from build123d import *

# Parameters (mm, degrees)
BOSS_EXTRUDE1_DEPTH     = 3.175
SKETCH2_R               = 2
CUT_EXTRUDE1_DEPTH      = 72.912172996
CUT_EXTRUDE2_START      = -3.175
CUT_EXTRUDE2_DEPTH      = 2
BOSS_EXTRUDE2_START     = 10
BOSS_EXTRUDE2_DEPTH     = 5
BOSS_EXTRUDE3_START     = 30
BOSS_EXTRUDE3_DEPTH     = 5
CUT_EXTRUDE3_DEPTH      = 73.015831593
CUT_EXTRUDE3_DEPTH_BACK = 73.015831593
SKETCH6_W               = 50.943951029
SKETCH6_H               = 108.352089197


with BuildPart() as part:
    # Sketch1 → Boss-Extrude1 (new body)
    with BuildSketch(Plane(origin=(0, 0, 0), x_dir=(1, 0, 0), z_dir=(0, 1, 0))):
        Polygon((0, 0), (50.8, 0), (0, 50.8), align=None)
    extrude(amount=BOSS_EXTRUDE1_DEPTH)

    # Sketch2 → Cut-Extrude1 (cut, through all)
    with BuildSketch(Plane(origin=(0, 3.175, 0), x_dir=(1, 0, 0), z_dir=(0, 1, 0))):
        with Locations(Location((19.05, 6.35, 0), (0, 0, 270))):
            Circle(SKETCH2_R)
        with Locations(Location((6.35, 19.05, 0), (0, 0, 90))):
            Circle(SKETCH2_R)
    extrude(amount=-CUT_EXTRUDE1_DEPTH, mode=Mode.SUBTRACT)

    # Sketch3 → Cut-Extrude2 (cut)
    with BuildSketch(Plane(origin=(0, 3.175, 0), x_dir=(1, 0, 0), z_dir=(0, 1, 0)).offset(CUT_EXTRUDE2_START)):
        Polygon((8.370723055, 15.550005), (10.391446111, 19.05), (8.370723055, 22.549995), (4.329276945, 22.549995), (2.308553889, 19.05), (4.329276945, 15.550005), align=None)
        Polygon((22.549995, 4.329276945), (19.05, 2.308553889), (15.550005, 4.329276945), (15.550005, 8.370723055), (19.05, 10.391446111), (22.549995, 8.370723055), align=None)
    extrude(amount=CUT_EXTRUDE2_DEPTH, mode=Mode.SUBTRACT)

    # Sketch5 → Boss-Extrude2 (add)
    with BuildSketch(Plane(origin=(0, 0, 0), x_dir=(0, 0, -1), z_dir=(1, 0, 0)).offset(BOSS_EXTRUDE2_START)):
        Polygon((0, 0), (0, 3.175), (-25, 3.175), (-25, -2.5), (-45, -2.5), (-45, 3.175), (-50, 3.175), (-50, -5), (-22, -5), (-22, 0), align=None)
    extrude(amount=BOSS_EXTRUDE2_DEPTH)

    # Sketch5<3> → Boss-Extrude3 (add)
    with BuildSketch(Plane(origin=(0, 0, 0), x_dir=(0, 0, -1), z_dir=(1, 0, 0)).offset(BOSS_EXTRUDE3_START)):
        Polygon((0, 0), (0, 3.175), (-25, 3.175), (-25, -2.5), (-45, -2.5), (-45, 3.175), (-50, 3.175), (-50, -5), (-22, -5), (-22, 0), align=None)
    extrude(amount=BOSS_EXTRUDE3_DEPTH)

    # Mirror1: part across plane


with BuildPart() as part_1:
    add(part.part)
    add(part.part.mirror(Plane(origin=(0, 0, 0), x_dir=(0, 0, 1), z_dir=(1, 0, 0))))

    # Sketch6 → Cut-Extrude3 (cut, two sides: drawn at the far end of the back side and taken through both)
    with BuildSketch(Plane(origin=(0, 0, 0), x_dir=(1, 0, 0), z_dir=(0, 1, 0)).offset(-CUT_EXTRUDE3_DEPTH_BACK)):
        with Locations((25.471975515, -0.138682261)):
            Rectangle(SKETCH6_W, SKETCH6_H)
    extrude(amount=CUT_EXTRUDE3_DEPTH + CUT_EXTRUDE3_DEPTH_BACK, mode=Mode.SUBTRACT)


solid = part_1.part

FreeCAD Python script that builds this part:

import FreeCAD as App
import Part
import Sketcher
Q = App.Units.Quantity

doc = App.newDocument("Part")
body = doc.addObject("PartDesign::Body", "Body")

sketch1 = body.newObject("Sketcher::SketchObject", "Sketch")
sketch1.AttachmentSupport = (doc.getObject("XZ_Plane"), [""])
sketch1.MapMode = "FlatFace"
sketch1.addGeometry([
    Part.LineSegment(App.Vector(0, 0, 0), App.Vector(51, 0, 0)),
    Part.LineSegment(App.Vector(51, 0, 0), App.Vector(0, -51, 0)),
    Part.LineSegment(App.Vector(0, -51, 0), App.Vector(0, 0, 0)),
], False)
sketch1.addConstraint([
    Sketcher.Constraint("Coincident", 0, 2, 1, 1),
    Sketcher.Constraint("Coincident", 1, 2, 2, 1),
    Sketcher.Constraint("Coincident", 2, 2, 0, 1),
    Sketcher.Constraint("Horizontal", 0),
    Sketcher.Constraint("Vertical", 2),
    Sketcher.Constraint("Coincident", 2, 2, -1, 1),
    Sketcher.Constraint("Equal", 0, 2),
    Sketcher.Constraint("DistanceX", 0, 1, 0, 2, 50.8),
])
pad1 = body.newObject("PartDesign::Pad", "Pad")
pad1.Profile = sketch1
pad1.Length = 3.175
pad1.Reversed = True

sketch2 = body.newObject("Sketcher::SketchObject", "Sketch001")
sketch2.AttachmentSupport = (doc.getObject("XZ_Plane"), [""])
sketch2.MapMode = "FlatFace"
sketch2.AttachmentOffset = App.Placement(App.Vector(0, 0, -3.175), App.Rotation())
sketch2.addGeometry([
    Part.Circle(App.Vector(19.1, -6.3, 0), App.Vector(0, 0, 1), 2),
    Part.Circle(App.Vector(6.3, -19.1, 0), App.Vector(0, 0, 1), 2),
], False)
sketch2.addConstraint([
    Sketcher.Constraint("Equal", 0, 1),
    Sketcher.Constraint("Diameter", 0, 4.0),
    Sketcher.Constraint("DistanceX", 1, 3, 0, 3, 12.7),
    Sketcher.Constraint("DistanceY", 1, 3, 0, 3, 12.7),
    Sketcher.Constraint("DistanceX", -1, 1, 0, 3, 19.05),
    Sketcher.Constraint("DistanceY", 0, 3, -1, 1, 6.35),
])
pocket1 = body.newObject("PartDesign::Pocket", "Pocket")
pocket1.Profile = sketch2
pocket1.Type = "ThroughAll"
pocket1.Reversed = True

sketch3 = body.newObject("Sketcher::SketchObject", "Sketch002")
sketch3.AttachmentSupport = (doc.getObject("XZ_Plane"), [""])
sketch3.MapMode = "FlatFace"
sketch3.addGeometry([
    Part.LineSegment(App.Vector(8.4, -15.6, 0), App.Vector(10.4, -19.1, 0)),
    Part.LineSegment(App.Vector(10.4, -19.1, 0), App.Vector(8.4, -22.5, 0)),
    Part.LineSegment(App.Vector(8.4, -22.5, 0), App.Vector(4.3, -22.5, 0)),
    Part.LineSegment(App.Vector(4.3, -22.5, 0), App.Vector(2.3, -19.1, 0)),
    Part.LineSegment(App.Vector(2.3, -19.1, 0), App.Vector(4.3, -15.6, 0)),
    Part.LineSegment(App.Vector(4.3, -15.6, 0), App.Vector(8.4, -15.6, 0)),
    Part.LineSegment(App.Vector(19.1, -2.3, 0), App.Vector(22.5, -4.3, 0)),
    Part.LineSegment(App.Vector(22.5, -4.3, 0), App.Vector(22.5, -8.4, 0)),
    Part.LineSegment(App.Vector(22.5, -8.4, 0), App.Vector(19.1, -10.4, 0)),
    Part.LineSegment(App.Vector(19.1, -10.4, 0), App.Vector(15.6, -8.4, 0)),
    Part.LineSegment(App.Vector(15.6, -8.4, 0), App.Vector(15.6, -4.3, 0)),
    Part.LineSegment(App.Vector(15.6, -4.3, 0), App.Vector(19.1, -2.3, 0)),
], False)
sketch3.addConstraint([
    Sketcher.Constraint("Coincident", 0, 2, 1, 1),
    Sketcher.Constraint("Coincident", 1, 2, 2, 1),
    Sketcher.Constraint("Coincident", 2, 2, 3, 1),
    Sketcher.Constraint("Coincident", 3, 2, 4, 1),
    Sketcher.Constraint("Coincident", 4, 2, 5, 1),
    Sketcher.Constraint("Coincident", 5, 2, 0, 1),
    Sketcher.Constraint("Coincident", 6, 2, 7, 1),
    Sketcher.Constraint("Coincident", 7, 2, 8, 1),
    Sketcher.Constraint("Coincident", 8, 2, 9, 1),
    Sketcher.Constraint("Coincident", 9, 2, 10, 1),
    Sketcher.Constraint("Coincident", 10, 2, 11, 1),
    Sketcher.Constraint("Coincident", 11, 2, 6, 1),
    Sketcher.Constraint("Horizontal", 2),
    Sketcher.Constraint("Horizontal", 5),
    Sketcher.Constraint("Vertical", 7),
    Sketcher.Constraint("Vertical", 10),
    Sketcher.Constraint("Parallel", 0, 3),
    Sketcher.Constraint("Parallel", 1, 4),
    Sketcher.Constraint("Perpendicular", 4, 6),
    Sketcher.Constraint("Perpendicular", 3, 8),
    Sketcher.Constraint("Parallel", 6, 9),
    Sketcher.Constraint("Parallel", 8, 11),
    Sketcher.Constraint("Horizontal", 0, 2, 3, 2),
    Sketcher.Constraint("Horizontal", 7, 2, 9, 2),
    Sketcher.Constraint("Horizontal", 6, 2, 10, 2),
    Sketcher.Constraint("Vertical", 2, 2, 4, 2),
    Sketcher.Constraint("Vertical", 1, 2, 5, 2),
    Sketcher.Constraint("Equal", 5, 7),
    Sketcher.Constraint("Equal", 4, 6),
    Sketcher.Constraint("Angle", 0, Q("-60 deg")),
    Sketcher.Constraint("DistanceY", 0, 2, -1, 1, 19.05),
    Sketcher.Constraint("DistanceX", -1, 1, 8, 2, 19.05),
    Sketcher.Constraint("DistanceX", 2, 2, 2, 1, 4.041446),
    Sketcher.Constraint("DistanceX", 2, 2, 0, 2, 6.062169),
    Sketcher.Constraint("DistanceX", 5, 2, 6, 2, 14.179272),
    Sketcher.Constraint("DistanceY", 5, 2, 6, 2, 11.220728),
])
pocket2 = body.newObject("PartDesign::Pocket", "Pocket001")
pocket2.Profile = sketch3
pocket2.Length = 2

sketch4 = body.newObject("Sketcher::SketchObject", "Sketch003")
sketch4.AttachmentSupport = (doc.getObject("YZ_Plane"), [""])
sketch4.MapMode = "FlatFace"
sketch4.AttachmentOffset = App.Placement(App.Vector(0, 0, 10), App.Rotation())
sketch4.addGeometry([
    Part.LineSegment(App.Vector(0, 0, 0), App.Vector(3.2, 0, 0)),
    Part.LineSegment(App.Vector(3.2, 0, 0), App.Vector(3.2, 25, 0)),
    Part.LineSegment(App.Vector(3.2, 25, 0), App.Vector(-2.5, 25, 0)),
    Part.LineSegment(App.Vector(-2.5, 25, 0), App.Vector(-2.5, 45, 0)),
    Part.LineSegment(App.Vector(-2.5, 45, 0), App.Vector(3.2, 45, 0)),
    Part.LineSegment(App.Vector(3.2, 45, 0), App.Vector(3.2, 50, 0)),
    Part.LineSegment(App.Vector(3.2, 50, 0), App.Vector(-5, 50, 0)),
    Part.LineSegment(App.Vector(-5, 50, 0), App.Vector(-5, 22, 0)),
    Part.LineSegment(App.Vector(-5, 22, 0), App.Vector(0, 22, 0)),
    Part.LineSegment(App.Vector(0, 22, 0), App.Vector(0, 0, 0)),
], False)
sketch4.addConstraint([
    Sketcher.Constraint("Coincident", 0, 2, 1, 1),
    Sketcher.Constraint("Coincident", 1, 2, 2, 1),
    Sketcher.Constraint("Coincident", 2, 2, 3, 1),
    Sketcher.Constraint("Coincident", 3, 2, 4, 1),
    Sketcher.Constraint("Coincident", 4, 2, 5, 1),
    Sketcher.Constraint("Coincident", 5, 2, 6, 1),
    Sketcher.Constraint("Coincident", 6, 2, 7, 1),
    Sketcher.Constraint("Coincident", 7, 2, 8, 1),
    Sketcher.Constraint("Coincident", 8, 2, 9, 1),
    Sketcher.Constraint("Coincident", 9, 2, 0, 1),
    Sketcher.Constraint("Horizontal", 0),
    Sketcher.Constraint("Vertical", 1),
    Sketcher.Constraint("Horizontal", 2),
    Sketcher.Constraint("Vertical", 3),
    Sketcher.Constraint("Horizontal", 4),
    Sketcher.Constraint("Vertical", 5),
    Sketcher.Constraint("Horizontal", 6),
    Sketcher.Constraint("Vertical", 7),
    Sketcher.Constraint("Horizontal", 8),
    Sketcher.Constraint("Vertical", 9),
    Sketcher.Constraint("Coincident", 9, 2, -1, 1),
    Sketcher.Constraint("Vertical", 1, 2, 4, 2),
    Sketcher.Constraint("Equal", 8, 5),
    Sketcher.Constraint("DistanceX", 8, 1, 8, 2, 5.0),
    Sketcher.Constraint("DistanceY", 1, 1, 1, 2, 25.0),
    Sketcher.Constraint("DistanceY", 3, 1, 3, 2, 20.0),
    Sketcher.Constraint("DistanceY", 7, 2, 7, 1, 28.0),
    Sketcher.Constraint("DistanceX", 2, 2, -1, 1, 2.5),
    Sketcher.Constraint("DistanceX", 0, 1, 0, 2, 3.175),
])
pad2 = body.newObject("PartDesign::Pad", "Pad001")
pad2.Profile = sketch4
pad2.Length = 5

sketch5 = body.newObject("Sketcher::SketchObject", "Sketch004")
sketch5.AttachmentSupport = (doc.getObject("YZ_Plane"), [""])
sketch5.MapMode = "FlatFace"
sketch5.AttachmentOffset = App.Placement(App.Vector(0, 0, 30), App.Rotation())
sketch5.addGeometry([
    Part.LineSegment(App.Vector(0, 0, 0), App.Vector(3.2, 0, 0)),
    Part.LineSegment(App.Vector(3.2, 0, 0), App.Vector(3.2, 25, 0)),
    Part.LineSegment(App.Vector(3.2, 25, 0), App.Vector(-2.5, 25, 0)),
    Part.LineSegment(App.Vector(-2.5, 25, 0), App.Vector(-2.5, 45, 0)),
    Part.LineSegment(App.Vector(-2.5, 45, 0), App.Vector(3.2, 45, 0)),
    Part.LineSegment(App.Vector(3.2, 45, 0), App.Vector(3.2, 50, 0)),
    Part.LineSegment(App.Vector(3.2, 50, 0), App.Vector(-5, 50, 0)),
    Part.LineSegment(App.Vector(-5, 50, 0), App.Vector(-5, 22, 0)),
    Part.LineSegment(App.Vector(-5, 22, 0), App.Vector(0, 22, 0)),
    Part.LineSegment(App.Vector(0, 22, 0), App.Vector(0, 0, 0)),
], False)
sketch5.addConstraint([
    Sketcher.Constraint("Coincident", 0, 2, 1, 1),
    Sketcher.Constraint("Coincident", 1, 2, 2, 1),
    Sketcher.Constraint("Coincident", 2, 2, 3, 1),
    Sketcher.Constraint("Coincident", 3, 2, 4, 1),
    Sketcher.Constraint("Coincident", 4, 2, 5, 1),
    Sketcher.Constraint("Coincident", 5, 2, 6, 1),
    Sketcher.Constraint("Coincident", 6, 2, 7, 1),
    Sketcher.Constraint("Coincident", 7, 2, 8, 1),
    Sketcher.Constraint("Coincident", 8, 2, 9, 1),
    Sketcher.Constraint("Coincident", 9, 2, 0, 1),
    Sketcher.Constraint("Horizontal", 0),
    Sketcher.Constraint("Vertical", 1),
    Sketcher.Constraint("Horizontal", 2),
    Sketcher.Constraint("Vertical", 3),
    Sketcher.Constraint("Horizontal", 4),
    Sketcher.Constraint("Vertical", 5),
    Sketcher.Constraint("Horizontal", 6),
    Sketcher.Constraint("Vertical", 7),
    Sketcher.Constraint("Horizontal", 8),
    Sketcher.Constraint("Vertical", 9),
    Sketcher.Constraint("Coincident", 9, 2, -1, 1),
    Sketcher.Constraint("Vertical", 1, 2, 4, 2),
    Sketcher.Constraint("Equal", 8, 5),
    Sketcher.Constraint("DistanceX", 8, 1, 8, 2, 5.0),
    Sketcher.Constraint("DistanceY", 1, 1, 1, 2, 25.0),
    Sketcher.Constraint("DistanceY", 3, 1, 3, 2, 20.0),
    Sketcher.Constraint("DistanceY", 7, 2, 7, 1, 28.0),
    Sketcher.Constraint("DistanceX", 2, 2, -1, 1, 2.5),
    Sketcher.Constraint("DistanceX", 0, 1, 0, 2, 3.175),
])
pad3 = body.newObject("PartDesign::Pad", "Pad002")
pad3.Profile = sketch5
pad3.Length = 5
body2 = doc.addObject("PartDesign::Body", "Body001")
doc.recompute()

body2.BaseFeature = body
doc.recompute()

mirroring = doc.addObject("Part::Mirroring", "Mirroring")
mirroring.Source = body
mirroring.Base = App.Vector(0, 0, 0)
mirroring.Normal = App.Vector(1, 0, 0)
body3 = doc.addObject("PartDesign::Body", "Body002")
body3.BaseFeature = mirroring
boolean = body2.newObject("PartDesign::Boolean", "Boolean")
boolean.Type = "Fuse"
boolean.addObjects([body3])
doc.recompute()

sketch6 = body2.newObject("Sketcher::SketchObject", "Sketch005")
sketch6.AttachmentSupport = (doc.getObject("XZ_Plane001"), [""])
sketch6.MapMode = "FlatFace"
sketch6.addGeometry([
    Part.LineSegment(App.Vector(0, -54, 0), App.Vector(0, 54, 0)),
    Part.LineSegment(App.Vector(0, 54, 0), App.Vector(51, 54, 0)),
    Part.LineSegment(App.Vector(51, 54, 0), App.Vector(51, -54, 0)),
    Part.LineSegment(App.Vector(51, -54, 0), App.Vector(0, -54, 0)),
], False)
sketch6.addConstraint([
    Sketcher.Constraint("Coincident", 0, 2, 1, 1),
    Sketcher.Constraint("Coincident", 1, 2, 2, 1),
    Sketcher.Constraint("Coincident", 2, 2, 3, 1),
    Sketcher.Constraint("Coincident", 3, 2, 0, 1),
    Sketcher.Constraint("Vertical", 0),
    Sketcher.Constraint("Horizontal", 1),
    Sketcher.Constraint("Vertical", 2),
    Sketcher.Constraint("Horizontal", 3),
    Sketcher.Constraint("PointOnObject", 0, 2, -2),
    Sketcher.Constraint("DistanceX", 1, 1, 1, 2, 50.943951),
    Sketcher.Constraint("DistanceY", 0, 1, 0, 2, 108.352089),
    Sketcher.Constraint("DistanceY", -1, 1, 0, 2, 54.314727),
])
pocket3 = body2.newObject("PartDesign::Pocket", "Pocket002")
pocket3.Profile = sketch6
pocket3.Type = "ThroughAll"
pocket3.Midplane = True
mirroring.Visibility = False

doc.recompute()
